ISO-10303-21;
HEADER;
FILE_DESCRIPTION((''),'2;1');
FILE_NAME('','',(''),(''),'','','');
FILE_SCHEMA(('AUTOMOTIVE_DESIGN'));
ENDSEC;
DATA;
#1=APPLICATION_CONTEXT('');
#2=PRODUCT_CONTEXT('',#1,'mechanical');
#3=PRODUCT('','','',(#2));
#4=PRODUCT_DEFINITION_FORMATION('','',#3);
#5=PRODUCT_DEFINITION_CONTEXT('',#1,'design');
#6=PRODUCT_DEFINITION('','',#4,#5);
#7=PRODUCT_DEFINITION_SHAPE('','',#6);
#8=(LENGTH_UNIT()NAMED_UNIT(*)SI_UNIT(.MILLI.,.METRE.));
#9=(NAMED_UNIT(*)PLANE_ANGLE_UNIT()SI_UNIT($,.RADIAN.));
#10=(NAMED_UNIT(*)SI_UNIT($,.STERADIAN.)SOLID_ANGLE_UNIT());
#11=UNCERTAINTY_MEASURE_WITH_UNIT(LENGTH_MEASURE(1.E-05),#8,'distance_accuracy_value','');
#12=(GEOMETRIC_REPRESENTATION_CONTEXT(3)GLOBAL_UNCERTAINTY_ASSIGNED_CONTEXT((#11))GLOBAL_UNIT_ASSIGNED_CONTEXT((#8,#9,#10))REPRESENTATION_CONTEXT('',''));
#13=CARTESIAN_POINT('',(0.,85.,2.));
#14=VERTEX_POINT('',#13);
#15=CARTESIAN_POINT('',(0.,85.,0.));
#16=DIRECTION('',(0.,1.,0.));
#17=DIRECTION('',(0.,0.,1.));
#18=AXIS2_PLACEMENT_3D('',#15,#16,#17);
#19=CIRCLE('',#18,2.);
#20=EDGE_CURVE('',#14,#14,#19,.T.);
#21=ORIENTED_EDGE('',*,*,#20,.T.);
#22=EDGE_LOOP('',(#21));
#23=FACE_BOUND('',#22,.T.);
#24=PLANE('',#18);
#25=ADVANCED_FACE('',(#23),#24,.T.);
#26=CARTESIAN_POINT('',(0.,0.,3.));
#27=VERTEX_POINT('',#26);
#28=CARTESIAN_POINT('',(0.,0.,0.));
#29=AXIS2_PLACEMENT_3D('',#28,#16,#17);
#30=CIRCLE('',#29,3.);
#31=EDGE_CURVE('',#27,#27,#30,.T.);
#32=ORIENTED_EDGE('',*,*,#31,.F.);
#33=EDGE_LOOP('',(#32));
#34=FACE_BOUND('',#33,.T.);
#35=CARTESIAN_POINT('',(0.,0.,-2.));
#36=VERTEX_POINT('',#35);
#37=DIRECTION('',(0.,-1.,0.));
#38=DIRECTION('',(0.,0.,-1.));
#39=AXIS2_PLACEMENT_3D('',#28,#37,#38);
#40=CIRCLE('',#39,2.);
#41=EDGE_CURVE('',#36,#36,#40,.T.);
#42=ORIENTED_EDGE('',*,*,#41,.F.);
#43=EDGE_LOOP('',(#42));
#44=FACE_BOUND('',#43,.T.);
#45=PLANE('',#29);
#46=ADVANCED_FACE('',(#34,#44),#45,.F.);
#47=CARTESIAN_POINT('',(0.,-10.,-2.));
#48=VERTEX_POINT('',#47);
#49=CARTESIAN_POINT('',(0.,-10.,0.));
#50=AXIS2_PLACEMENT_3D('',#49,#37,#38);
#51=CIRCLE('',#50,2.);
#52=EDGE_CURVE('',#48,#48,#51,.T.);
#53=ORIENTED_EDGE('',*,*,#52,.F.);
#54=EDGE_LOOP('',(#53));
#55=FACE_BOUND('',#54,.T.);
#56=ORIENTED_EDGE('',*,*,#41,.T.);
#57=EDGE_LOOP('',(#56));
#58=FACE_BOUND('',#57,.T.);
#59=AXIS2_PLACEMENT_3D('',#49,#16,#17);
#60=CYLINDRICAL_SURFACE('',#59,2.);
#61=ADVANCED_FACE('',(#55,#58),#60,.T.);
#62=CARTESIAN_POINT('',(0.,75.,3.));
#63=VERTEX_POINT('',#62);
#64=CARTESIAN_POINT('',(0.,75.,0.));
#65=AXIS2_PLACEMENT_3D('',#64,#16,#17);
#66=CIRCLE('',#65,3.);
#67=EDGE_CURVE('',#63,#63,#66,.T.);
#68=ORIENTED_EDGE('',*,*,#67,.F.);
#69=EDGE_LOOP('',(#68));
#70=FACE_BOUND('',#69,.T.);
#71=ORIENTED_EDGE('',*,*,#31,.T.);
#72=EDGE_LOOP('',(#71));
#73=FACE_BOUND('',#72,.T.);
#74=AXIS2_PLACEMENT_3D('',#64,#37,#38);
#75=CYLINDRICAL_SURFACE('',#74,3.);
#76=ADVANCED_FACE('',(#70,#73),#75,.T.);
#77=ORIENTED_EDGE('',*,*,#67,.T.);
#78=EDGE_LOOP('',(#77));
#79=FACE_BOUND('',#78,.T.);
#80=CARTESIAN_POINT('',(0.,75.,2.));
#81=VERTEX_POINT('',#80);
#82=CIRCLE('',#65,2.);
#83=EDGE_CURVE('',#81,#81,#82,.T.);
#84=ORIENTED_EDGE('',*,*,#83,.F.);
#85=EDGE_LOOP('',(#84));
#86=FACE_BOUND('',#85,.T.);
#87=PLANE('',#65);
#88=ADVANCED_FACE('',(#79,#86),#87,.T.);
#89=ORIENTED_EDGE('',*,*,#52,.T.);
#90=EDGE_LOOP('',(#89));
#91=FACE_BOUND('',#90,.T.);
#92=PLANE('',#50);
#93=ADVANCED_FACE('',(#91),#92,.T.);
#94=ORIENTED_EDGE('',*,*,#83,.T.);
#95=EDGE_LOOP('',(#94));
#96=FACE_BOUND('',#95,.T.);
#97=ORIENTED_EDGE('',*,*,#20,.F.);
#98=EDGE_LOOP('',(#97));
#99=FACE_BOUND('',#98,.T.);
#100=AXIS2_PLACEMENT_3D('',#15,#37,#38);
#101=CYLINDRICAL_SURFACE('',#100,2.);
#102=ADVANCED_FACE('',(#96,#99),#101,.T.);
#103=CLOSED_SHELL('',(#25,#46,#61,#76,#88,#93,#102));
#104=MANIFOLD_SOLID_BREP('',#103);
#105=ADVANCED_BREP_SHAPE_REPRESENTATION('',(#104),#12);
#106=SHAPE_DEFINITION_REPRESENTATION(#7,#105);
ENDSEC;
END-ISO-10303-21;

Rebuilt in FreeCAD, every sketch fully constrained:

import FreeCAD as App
import Part
import Sketcher

V = App.Vector
Q = App.Units.Quantity

doc = App.newDocument("Part")
body = doc.addObject("PartDesign::Body", "Body")

# Sketch on XZ plane
sketch1 = body.newObject("Sketcher::SketchObject", "Sketch")
sketch1.AttachmentSupport = (doc.getObject("XZ_Plane"), [""])
sketch1.MapMode = "FlatFace"
sketch1.addGeometry(Part.Circle(V(0, 0, 0), V(0, 0, 1), 3), False)
sketch1.addConstraint(Sketcher.Constraint("Coincident", 0, 3, -1, 1))
sketch1.addConstraint(Sketcher.Constraint("Diameter", 0, Q("6 mm")))
pad1 = body.newObject("PartDesign::Pad", "Pad")
pad1.Profile = sketch1
pad1.Length = 75
pad1.Reversed = True

# Sketch on XZ plane
sketch2 = body.newObject("Sketcher::SketchObject", "Sketch001")
sketch2.AttachmentSupport = (doc.getObject("XZ_Plane"), [""])
sketch2.MapMode = "FlatFace"
sketch2.AttachmentOffset = App.Placement(V(0, 0, -75), App.Rotation())
sketch2.addGeometry(Part.Circle(V(0, 0, 0), V(0, 0, 1), 2), False)
sketch2.addConstraint(Sketcher.Constraint("Coincident", 0, 3, -1, 1))
sketch2.addConstraint(Sketcher.Constraint("Diameter", 0, Q("4 mm")))
pad2 = body.newObject("PartDesign::Pad", "Pad001")
pad2.Profile = sketch2
pad2.Length = 10
pad2.Reversed = True

# Sketch on XZ plane
sketch3 = body.newObject("Sketcher::SketchObject", "Sketch002")
sketch3.AttachmentSupport = (doc.getObject("XZ_Plane"), [""])
sketch3.MapMode = "FlatFace"
sketch3.addGeometry(Part.Circle(V(0, 0, 0), V(0, 0, 1), 2), False)
sketch3.addConstraint(Sketcher.Constraint("Coincident", 0, 3, -1, 1))
sketch3.addConstraint(Sketcher.Constraint("Diameter", 0, Q("4 mm")))
pad3 = body.newObject("PartDesign::Pad", "Pad002")
pad3.Profile = sketch3
pad3.Length = 10

doc.recompute()
